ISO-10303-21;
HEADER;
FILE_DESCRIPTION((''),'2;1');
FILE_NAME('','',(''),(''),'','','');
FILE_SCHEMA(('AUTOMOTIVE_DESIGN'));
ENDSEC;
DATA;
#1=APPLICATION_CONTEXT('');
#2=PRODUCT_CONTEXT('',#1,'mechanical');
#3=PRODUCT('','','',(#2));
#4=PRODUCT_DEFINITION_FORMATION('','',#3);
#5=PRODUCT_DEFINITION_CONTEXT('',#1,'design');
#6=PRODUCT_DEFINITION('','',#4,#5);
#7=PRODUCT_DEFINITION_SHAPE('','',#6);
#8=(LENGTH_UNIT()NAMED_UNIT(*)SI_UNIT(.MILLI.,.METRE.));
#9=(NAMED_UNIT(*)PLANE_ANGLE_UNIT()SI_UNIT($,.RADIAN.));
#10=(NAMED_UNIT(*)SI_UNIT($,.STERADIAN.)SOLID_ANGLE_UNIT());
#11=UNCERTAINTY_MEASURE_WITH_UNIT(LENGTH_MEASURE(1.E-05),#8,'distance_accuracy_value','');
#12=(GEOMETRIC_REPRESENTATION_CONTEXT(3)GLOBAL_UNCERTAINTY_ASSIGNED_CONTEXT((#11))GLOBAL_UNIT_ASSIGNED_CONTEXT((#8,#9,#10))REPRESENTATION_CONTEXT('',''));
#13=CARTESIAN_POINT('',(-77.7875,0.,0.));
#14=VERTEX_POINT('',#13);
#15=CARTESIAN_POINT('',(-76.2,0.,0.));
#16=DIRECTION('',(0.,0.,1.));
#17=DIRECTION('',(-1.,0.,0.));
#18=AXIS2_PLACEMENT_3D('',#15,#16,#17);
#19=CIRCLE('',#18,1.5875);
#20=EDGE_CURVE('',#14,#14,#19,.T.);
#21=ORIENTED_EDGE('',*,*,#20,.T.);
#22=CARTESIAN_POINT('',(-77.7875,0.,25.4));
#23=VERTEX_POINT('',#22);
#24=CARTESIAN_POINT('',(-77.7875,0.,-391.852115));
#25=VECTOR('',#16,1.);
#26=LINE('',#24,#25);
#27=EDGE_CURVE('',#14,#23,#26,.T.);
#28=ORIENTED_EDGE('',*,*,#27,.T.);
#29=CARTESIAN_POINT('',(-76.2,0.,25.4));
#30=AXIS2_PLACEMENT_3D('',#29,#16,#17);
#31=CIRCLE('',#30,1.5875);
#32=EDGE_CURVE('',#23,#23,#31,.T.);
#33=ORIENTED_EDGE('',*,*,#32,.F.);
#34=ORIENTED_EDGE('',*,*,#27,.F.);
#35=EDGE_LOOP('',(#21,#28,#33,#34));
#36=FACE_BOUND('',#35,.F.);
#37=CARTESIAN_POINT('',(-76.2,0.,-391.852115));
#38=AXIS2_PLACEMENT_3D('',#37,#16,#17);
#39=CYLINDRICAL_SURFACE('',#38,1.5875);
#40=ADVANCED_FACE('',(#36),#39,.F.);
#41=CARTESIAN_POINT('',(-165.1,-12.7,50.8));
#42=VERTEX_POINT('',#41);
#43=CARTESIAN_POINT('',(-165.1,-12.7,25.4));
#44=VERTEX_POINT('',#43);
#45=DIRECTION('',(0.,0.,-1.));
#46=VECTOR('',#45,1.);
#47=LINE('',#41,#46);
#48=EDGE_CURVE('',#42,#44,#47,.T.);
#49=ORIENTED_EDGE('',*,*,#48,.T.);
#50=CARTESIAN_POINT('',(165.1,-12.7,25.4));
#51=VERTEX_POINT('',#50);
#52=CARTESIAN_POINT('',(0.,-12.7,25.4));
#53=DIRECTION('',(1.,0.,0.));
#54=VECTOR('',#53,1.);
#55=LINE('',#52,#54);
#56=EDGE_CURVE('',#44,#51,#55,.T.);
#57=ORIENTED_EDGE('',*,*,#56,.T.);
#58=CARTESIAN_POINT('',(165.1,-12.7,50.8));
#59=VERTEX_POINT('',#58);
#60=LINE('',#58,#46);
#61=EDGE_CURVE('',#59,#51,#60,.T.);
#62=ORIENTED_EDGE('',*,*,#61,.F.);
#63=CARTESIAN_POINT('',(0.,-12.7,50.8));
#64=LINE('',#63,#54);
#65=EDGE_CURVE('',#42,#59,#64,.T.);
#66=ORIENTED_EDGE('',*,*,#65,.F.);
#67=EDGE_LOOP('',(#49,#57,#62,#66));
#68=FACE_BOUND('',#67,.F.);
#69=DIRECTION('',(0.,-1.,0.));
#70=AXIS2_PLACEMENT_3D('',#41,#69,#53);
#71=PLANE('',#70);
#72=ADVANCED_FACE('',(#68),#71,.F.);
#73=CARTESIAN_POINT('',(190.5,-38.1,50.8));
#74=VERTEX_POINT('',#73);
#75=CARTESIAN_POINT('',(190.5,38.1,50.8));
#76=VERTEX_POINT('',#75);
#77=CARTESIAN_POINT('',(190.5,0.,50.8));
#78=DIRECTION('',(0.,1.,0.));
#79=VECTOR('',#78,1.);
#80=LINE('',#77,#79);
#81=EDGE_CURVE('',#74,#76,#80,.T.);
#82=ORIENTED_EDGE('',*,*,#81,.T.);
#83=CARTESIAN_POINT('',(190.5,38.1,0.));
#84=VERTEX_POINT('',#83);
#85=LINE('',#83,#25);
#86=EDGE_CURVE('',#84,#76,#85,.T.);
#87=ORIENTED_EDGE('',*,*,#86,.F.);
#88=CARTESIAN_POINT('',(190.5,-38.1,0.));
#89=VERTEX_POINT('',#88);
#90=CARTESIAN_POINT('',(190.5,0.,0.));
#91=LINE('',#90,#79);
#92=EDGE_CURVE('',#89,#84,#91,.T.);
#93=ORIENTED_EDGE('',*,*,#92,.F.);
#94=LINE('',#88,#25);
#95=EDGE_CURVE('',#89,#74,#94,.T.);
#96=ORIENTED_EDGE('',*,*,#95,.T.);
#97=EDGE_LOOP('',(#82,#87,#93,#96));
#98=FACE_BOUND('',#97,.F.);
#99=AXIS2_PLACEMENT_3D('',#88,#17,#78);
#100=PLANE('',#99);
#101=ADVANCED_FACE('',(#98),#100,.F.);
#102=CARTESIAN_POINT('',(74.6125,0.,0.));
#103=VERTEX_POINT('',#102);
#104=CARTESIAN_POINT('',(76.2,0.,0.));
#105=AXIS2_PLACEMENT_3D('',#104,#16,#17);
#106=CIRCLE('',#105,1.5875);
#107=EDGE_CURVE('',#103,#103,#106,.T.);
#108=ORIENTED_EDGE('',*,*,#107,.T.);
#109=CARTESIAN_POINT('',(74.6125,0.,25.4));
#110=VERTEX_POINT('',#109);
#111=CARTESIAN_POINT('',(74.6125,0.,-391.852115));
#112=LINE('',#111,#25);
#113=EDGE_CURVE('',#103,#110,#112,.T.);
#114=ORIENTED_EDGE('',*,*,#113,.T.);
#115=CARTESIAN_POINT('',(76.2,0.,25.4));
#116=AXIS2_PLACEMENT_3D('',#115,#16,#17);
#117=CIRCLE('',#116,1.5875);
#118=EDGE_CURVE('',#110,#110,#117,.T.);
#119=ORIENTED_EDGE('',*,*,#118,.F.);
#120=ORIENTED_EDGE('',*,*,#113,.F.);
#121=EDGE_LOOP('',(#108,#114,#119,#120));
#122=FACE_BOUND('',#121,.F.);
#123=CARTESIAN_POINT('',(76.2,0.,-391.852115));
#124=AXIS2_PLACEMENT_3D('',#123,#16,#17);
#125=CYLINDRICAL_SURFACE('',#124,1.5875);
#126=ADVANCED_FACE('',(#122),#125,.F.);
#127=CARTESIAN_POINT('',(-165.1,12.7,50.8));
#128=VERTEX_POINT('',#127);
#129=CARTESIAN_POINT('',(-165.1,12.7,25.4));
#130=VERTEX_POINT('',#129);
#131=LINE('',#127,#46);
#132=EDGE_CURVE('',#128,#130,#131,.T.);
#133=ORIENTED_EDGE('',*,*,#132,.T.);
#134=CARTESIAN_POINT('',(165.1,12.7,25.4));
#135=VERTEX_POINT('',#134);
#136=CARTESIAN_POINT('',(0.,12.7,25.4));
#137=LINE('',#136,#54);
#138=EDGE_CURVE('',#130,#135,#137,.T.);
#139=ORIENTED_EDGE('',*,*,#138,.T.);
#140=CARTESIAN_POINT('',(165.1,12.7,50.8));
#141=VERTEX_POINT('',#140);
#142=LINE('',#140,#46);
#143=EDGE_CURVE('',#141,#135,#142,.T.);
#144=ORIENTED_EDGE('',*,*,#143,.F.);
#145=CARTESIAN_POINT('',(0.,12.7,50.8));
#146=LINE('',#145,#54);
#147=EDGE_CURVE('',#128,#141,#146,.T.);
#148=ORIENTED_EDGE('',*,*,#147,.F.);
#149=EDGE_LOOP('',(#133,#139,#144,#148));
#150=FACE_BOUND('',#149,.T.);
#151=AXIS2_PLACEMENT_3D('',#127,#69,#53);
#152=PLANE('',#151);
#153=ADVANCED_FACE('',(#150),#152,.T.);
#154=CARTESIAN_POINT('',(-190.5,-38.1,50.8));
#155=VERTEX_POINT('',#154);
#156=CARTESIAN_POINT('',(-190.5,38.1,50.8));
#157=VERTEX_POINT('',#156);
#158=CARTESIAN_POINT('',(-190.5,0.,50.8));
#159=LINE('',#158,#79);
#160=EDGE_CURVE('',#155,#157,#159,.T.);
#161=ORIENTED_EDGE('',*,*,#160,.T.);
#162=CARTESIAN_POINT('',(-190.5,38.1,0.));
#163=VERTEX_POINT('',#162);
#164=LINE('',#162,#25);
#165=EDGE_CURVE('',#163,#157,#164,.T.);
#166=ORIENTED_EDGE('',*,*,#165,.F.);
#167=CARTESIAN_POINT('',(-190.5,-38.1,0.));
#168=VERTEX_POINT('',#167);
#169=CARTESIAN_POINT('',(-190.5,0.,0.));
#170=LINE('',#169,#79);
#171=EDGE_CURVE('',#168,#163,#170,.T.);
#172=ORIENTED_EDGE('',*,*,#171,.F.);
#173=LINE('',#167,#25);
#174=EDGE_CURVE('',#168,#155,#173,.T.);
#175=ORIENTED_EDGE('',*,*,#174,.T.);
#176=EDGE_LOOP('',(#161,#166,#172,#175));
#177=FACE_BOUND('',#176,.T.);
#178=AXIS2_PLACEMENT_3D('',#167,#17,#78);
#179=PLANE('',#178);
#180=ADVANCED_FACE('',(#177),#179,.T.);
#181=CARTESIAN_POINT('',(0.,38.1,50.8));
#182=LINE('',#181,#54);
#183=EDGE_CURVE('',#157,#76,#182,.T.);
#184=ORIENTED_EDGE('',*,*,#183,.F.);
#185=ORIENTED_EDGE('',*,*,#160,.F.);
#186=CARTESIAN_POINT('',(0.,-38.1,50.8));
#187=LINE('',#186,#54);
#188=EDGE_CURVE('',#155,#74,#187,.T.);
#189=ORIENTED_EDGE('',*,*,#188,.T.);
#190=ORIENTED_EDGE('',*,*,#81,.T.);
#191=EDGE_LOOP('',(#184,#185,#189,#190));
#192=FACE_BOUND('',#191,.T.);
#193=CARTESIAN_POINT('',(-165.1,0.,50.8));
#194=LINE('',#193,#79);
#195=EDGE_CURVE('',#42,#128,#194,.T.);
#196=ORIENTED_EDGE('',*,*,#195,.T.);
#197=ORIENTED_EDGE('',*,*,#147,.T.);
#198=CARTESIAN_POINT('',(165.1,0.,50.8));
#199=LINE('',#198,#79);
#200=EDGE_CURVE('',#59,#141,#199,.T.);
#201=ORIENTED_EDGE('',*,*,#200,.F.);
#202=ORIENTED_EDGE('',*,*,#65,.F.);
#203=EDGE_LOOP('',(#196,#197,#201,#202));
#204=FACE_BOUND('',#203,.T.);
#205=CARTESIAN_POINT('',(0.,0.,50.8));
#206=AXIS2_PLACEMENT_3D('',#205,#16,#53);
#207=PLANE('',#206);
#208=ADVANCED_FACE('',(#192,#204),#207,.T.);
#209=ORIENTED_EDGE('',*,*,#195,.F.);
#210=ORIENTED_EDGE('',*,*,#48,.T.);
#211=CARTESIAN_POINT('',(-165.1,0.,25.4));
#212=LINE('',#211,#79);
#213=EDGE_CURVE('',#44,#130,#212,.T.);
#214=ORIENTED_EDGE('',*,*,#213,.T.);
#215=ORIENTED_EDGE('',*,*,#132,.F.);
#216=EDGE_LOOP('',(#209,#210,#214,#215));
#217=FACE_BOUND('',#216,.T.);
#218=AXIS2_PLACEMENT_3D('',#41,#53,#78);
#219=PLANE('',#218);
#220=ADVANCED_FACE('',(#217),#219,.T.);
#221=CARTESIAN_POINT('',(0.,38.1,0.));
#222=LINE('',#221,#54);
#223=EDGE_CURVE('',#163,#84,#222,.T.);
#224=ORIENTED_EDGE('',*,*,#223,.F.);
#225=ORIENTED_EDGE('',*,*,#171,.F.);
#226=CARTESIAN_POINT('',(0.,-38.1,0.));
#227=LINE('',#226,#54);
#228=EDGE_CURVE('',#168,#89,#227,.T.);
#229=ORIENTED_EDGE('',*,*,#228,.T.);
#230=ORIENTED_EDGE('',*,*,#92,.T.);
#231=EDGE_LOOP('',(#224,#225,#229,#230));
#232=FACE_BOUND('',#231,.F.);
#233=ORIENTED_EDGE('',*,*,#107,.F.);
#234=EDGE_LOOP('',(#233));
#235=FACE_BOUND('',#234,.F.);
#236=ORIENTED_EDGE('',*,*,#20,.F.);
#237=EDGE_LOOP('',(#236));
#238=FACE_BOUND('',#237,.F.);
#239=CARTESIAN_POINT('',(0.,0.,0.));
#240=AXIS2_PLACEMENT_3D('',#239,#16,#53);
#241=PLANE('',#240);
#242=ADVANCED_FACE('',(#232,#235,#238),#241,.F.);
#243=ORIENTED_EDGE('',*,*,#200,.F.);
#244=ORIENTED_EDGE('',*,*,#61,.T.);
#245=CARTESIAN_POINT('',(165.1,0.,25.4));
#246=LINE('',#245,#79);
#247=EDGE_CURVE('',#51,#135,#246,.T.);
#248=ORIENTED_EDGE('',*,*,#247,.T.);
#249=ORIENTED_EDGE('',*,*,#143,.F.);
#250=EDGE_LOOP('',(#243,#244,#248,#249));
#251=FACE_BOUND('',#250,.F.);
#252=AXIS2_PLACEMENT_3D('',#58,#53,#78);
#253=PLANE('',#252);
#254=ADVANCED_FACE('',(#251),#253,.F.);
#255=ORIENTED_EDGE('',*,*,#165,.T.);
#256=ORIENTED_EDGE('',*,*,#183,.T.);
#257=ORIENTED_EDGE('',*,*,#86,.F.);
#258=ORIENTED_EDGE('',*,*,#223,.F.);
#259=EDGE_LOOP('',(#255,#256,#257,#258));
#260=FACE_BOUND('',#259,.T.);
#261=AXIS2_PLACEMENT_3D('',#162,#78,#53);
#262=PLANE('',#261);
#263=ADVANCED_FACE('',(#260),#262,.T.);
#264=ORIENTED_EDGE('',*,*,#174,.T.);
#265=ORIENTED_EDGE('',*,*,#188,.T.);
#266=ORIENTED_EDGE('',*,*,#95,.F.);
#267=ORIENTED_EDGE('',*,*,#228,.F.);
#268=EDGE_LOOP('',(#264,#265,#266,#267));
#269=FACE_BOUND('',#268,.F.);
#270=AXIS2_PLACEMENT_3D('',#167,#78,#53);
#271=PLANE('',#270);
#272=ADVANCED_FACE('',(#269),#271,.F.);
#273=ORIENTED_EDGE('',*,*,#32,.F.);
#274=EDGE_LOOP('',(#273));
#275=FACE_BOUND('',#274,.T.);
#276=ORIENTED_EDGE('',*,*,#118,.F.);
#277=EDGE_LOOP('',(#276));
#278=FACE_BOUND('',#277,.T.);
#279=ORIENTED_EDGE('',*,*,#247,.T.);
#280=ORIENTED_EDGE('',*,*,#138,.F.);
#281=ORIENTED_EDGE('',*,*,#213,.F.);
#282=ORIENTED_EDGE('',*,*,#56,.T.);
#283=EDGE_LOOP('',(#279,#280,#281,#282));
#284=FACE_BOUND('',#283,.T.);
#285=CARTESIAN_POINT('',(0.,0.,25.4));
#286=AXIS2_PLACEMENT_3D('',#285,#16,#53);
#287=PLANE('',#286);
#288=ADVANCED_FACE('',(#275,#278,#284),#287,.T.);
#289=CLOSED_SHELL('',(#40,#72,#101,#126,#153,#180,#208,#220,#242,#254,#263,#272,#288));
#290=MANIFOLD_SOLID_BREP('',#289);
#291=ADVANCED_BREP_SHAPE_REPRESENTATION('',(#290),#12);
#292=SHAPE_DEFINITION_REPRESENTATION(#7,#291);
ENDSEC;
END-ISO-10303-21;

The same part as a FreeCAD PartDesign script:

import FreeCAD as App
import Part
import Sketcher
Q = App.Units.Quantity


def add_polygon(sketch, points):
    """Adds a closed chain of lines whose ends are joined by coincident constraints."""
    first, n = sketch.GeometryCount, len(points)
    for a, b in zip(points, points[1:] + points[:1]):
        sketch.addGeometry(Part.LineSegment(App.Vector(*a, 0), App.Vector(*b, 0)), False)
    for i in range(n):
        sketch.addConstraint(Sketcher.Constraint("Coincident", first + i, 2, first + (i + 1) % n, 1))

doc = App.newDocument("Part")
body = doc.addObject("PartDesign::Body", "Body")

# Sketch on XY plane
sketch1 = body.newObject("Sketcher::SketchObject", "Sketch")
sketch1.AttachmentSupport = (doc.getObject("XY_Plane"), [""])
sketch1.MapMode = "FlatFace"
add_polygon(sketch1, [(-190, 38), (-190, -38), (190, -38), (190, 38)])  # lines 0-3
sketch1.addConstraint([
    Sketcher.Constraint("Vertical", 0),
    Sketcher.Constraint("Horizontal", 1),
    Sketcher.Constraint("Vertical", 2),
    Sketcher.Constraint("Horizontal", 3),
    Sketcher.Constraint("Symmetric", 0, 2, 2, 2, -1, 1),
    Sketcher.Constraint("DistanceX", 1, 1, 1, 2, Q("15 in")),
    Sketcher.Constraint("DistanceY", 0, 2, 0, 1, Q("3 in")),
])
pad1 = body.newObject("PartDesign::Pad", "Pad")
pad1.Profile = sketch1
pad1.Length = Q("2 in")

# Sketch on XY plane
sketch2 = body.newObject("Sketcher::SketchObject", "Sketch001")
sketch2.AttachmentSupport = (doc.getObject("XY_Plane"), [""])
sketch2.MapMode = "FlatFace"
sketch2.AttachmentOffset = App.Placement(App.Vector(0, 0, 2 * 25.4), App.Rotation())
add_polygon(sketch2, [(-165, 13), (-165, -13), (165, -13), (165, 13)])  # lines 0-3
sketch2.addConstraint([
    Sketcher.Constraint("Vertical", 0),
    Sketcher.Constraint("Horizontal", 1),
    Sketcher.Constraint("Vertical", 2),
    Sketcher.Constraint("Horizontal", 3),
    Sketcher.Constraint("Symmetric", 0, 2, 2, 2, -1, 1),
    Sketcher.Constraint("DistanceX", 1, 1, 1, 2, Q("13 in")),
    Sketcher.Constraint("DistanceY", 0, 2, 0, 1, Q("1 in")),
])
pocket1 = body.newObject("PartDesign::Pocket", "Pocket")
pocket1.Profile = sketch2
pocket1.Length = Q("1 in")

# Sketch on XY plane
sketch3 = body.newObject("Sketcher::SketchObject", "Sketch002")
sketch3.AttachmentSupport = (doc.getObject("XY_Plane"), [""])
sketch3.MapMode = "FlatFace"
sketch3.addGeometry([
    Part.Circle(App.Vector(-76.2, 0, 0), App.Vector(0, 0, 1), 1.6),
    Part.Circle(App.Vector(76.2, 0, 0), App.Vector(0, 0, 1), 1.6),
], False)
sketch3.addConstraint([
    Sketcher.Constraint("Equal", 0, 1),
    Sketcher.Constraint("Symmetric", 0, 3, 1, 3, -1, 1),
    Sketcher.Constraint("PointOnObject", 0, 3, -1),
    Sketcher.Constraint("Diameter", 0, Q("0.125 in")),
    Sketcher.Constraint("DistanceX", 0, 3, -1, 1, Q("3 in")),
])
doc.recompute()
hole = body.newObject("PartDesign::Hole", "Hole")
hole.Profile = sketch3
hole.ThreadType = "None"
hole.Diameter = Q("0.125 in")
hole.DepthType = "ThroughAll"
hole.Reversed = True

doc.recompute()
